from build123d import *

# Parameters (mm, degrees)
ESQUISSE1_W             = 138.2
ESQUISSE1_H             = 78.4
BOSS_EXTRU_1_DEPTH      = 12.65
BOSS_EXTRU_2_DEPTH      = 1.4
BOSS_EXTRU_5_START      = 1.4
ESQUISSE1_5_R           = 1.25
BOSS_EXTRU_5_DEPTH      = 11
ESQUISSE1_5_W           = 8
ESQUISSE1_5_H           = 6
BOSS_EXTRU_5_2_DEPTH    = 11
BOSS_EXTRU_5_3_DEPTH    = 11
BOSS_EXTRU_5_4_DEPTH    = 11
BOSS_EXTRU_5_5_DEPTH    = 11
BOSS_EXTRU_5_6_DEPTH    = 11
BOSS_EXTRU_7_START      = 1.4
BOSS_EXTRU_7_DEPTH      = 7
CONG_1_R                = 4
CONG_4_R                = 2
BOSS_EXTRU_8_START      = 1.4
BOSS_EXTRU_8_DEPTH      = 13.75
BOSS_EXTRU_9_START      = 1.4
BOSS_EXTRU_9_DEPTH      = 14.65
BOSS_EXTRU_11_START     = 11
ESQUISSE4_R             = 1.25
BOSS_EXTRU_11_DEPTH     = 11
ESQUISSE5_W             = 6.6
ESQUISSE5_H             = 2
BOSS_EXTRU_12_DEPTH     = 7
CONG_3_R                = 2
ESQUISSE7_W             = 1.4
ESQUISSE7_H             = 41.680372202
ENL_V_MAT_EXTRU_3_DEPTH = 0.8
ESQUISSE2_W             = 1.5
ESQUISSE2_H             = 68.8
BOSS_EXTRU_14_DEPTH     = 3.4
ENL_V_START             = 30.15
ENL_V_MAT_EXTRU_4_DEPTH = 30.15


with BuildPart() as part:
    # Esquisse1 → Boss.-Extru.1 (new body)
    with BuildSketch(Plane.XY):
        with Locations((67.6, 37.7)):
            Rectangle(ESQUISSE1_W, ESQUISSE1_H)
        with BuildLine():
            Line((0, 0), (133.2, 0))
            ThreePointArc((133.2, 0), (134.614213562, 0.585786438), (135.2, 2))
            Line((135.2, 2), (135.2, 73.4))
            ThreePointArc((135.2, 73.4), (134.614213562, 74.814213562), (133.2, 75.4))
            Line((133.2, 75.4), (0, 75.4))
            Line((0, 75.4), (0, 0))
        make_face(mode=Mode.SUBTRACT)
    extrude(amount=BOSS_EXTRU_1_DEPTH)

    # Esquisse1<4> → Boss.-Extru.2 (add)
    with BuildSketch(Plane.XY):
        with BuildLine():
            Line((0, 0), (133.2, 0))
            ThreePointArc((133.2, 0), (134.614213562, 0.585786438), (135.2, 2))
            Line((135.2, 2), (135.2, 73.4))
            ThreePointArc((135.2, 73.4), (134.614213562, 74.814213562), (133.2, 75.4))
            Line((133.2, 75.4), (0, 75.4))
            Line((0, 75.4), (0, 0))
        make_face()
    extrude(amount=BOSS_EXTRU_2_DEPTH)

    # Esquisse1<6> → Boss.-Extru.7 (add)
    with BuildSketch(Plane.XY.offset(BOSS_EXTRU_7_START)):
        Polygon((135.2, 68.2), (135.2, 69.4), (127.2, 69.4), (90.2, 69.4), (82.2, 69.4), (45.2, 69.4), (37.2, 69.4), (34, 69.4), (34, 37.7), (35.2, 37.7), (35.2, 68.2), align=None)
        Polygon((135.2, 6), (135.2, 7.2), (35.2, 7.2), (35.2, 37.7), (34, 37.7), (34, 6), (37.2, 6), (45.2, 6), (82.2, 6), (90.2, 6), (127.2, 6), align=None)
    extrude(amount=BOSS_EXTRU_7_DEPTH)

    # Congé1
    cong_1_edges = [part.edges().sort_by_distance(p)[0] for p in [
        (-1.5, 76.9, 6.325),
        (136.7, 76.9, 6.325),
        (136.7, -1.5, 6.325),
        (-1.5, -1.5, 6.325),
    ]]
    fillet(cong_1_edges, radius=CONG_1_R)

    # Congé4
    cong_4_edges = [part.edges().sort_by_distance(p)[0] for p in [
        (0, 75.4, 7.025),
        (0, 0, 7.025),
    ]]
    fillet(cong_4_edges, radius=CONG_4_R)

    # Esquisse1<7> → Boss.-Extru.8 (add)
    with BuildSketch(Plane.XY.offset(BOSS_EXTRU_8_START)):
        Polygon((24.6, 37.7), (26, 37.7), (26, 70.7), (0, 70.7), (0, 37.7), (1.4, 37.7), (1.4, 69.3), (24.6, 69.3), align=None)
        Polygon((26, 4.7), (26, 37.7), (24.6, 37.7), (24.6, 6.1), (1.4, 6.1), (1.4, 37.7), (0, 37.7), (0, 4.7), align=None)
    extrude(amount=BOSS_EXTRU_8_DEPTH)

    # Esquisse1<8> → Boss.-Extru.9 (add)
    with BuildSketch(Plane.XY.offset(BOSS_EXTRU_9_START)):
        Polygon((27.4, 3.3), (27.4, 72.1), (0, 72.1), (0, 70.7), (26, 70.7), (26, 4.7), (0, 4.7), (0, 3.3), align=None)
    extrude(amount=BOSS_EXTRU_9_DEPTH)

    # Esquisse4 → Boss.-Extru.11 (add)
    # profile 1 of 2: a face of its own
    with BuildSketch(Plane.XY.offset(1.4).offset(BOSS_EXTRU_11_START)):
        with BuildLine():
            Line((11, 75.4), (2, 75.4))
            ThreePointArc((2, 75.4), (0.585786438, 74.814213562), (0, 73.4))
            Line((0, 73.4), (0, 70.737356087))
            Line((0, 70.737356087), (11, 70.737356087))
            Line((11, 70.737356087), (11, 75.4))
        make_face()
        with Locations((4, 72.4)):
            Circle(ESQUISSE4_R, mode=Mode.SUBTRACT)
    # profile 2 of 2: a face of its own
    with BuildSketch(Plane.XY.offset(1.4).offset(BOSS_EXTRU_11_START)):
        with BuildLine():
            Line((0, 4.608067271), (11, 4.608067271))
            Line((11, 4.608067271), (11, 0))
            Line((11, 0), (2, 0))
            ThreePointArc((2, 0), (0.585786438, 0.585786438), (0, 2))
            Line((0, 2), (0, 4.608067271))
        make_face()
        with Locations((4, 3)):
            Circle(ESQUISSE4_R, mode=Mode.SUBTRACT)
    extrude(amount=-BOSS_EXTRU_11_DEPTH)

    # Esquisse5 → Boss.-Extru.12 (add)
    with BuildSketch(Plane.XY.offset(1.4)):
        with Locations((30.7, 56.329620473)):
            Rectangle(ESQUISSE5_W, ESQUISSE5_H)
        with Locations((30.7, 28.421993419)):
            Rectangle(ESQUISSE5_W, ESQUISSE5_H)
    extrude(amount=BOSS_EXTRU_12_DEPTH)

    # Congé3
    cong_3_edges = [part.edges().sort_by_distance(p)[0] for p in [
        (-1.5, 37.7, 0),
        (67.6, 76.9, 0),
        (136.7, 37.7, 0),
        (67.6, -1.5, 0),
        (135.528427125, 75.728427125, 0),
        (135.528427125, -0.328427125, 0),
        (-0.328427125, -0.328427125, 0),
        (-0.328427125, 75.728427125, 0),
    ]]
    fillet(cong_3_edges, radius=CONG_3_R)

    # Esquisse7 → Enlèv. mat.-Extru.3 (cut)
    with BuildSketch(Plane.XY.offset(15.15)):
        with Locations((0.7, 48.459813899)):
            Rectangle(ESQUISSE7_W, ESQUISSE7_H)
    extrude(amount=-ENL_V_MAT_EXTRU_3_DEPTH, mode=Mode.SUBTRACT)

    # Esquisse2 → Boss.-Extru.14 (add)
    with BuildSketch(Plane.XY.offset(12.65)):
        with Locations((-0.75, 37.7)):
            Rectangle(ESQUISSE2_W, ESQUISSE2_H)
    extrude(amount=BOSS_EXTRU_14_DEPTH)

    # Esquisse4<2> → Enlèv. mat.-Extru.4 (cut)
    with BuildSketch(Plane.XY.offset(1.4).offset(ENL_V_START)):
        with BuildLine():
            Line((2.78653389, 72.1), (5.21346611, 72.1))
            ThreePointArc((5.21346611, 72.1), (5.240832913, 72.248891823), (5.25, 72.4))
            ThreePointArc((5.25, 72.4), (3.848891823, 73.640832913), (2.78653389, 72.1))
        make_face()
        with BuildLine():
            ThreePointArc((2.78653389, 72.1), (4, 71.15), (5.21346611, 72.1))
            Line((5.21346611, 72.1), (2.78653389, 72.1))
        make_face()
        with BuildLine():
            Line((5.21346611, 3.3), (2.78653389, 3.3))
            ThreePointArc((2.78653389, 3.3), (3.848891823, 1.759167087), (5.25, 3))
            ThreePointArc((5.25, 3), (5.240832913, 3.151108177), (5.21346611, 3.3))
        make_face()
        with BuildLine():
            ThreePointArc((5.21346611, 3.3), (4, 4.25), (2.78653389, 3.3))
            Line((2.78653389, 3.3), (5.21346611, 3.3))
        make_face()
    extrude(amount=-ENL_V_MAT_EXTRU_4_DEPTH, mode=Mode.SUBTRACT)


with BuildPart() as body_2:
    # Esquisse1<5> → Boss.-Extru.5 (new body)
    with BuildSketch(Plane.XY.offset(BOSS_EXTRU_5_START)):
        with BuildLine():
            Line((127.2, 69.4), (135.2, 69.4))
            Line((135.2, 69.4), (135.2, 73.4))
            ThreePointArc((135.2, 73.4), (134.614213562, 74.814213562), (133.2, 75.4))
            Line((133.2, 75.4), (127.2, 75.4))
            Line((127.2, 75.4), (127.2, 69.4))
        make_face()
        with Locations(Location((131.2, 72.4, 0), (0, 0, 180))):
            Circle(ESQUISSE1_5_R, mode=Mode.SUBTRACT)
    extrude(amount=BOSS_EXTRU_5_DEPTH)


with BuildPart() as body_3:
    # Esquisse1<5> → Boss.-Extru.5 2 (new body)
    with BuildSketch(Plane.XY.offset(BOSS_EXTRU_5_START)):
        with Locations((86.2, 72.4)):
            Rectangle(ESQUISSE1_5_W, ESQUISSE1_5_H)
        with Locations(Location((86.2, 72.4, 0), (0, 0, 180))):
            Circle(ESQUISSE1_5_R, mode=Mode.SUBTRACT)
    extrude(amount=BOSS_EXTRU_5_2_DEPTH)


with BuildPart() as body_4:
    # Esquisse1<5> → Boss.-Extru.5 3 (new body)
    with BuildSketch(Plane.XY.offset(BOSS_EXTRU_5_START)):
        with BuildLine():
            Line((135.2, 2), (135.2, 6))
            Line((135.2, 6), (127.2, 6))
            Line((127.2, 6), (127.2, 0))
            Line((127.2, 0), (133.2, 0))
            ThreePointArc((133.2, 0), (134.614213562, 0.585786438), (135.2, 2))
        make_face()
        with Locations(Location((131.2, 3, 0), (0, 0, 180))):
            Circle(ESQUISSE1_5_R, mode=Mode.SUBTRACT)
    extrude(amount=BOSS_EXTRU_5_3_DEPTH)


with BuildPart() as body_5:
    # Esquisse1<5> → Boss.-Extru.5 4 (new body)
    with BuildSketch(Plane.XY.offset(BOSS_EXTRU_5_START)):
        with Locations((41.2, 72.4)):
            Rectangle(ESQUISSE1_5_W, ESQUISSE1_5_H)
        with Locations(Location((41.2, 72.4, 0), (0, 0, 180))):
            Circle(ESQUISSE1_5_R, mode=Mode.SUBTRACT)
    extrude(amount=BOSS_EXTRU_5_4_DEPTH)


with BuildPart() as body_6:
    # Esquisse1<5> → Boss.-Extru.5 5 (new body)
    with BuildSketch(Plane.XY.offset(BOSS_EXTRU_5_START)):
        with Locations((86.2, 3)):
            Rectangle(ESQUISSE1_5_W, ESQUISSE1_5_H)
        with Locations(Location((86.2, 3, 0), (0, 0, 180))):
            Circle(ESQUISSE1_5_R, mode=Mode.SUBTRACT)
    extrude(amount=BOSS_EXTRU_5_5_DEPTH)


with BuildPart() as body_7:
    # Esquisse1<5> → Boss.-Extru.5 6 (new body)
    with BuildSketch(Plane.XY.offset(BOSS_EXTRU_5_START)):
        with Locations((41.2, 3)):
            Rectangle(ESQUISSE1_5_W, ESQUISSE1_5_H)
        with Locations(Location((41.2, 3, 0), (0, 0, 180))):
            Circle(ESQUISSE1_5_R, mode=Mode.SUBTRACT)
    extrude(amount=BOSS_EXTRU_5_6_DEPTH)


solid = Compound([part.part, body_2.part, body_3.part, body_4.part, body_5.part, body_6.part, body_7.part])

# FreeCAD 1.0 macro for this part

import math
import FreeCAD as App
import Part
import Sketcher

V = App.Vector


def edges_at(feature, points):
    """Names of the edges that pass closest to the given points."""
    edges = feature.Shape.Edges
    near = lambda p: min(range(len(edges)), key=lambda i: edges[i].distToShape(Part.Vertex(*p))[0])
    return sorted({f"Edge{near(p) + 1}" for p in points})

doc = App.newDocument("Part")
body = doc.addObject("PartDesign::Body", "Body")

sketch1 = doc.addObject("Sketcher::SketchObject", "Sketch")
body.addObject(sketch1)
sketch1.AttachmentSupport = (doc.XY_Plane, [""])
sketch1.MapMode = "FlatFace"
sketch1.addGeometry([
    Part.LineSegment(V(-1.5, 76.9, 0), V(-1.5, -1.5, 0)),
    Part.LineSegment(V(-1.5, -1.5, 0), V(136.7, -1.5, 0)),
    Part.LineSegment(V(136.7, -1.5, 0), V(136.7, 76.9, 0)),
    Part.LineSegment(V(136.7, 76.9, 0), V(-1.5, 76.9, 0)),
    Part.LineSegment(V(133.2, 0, 0), V(0, 0, 0)),
    Part.LineSegment(V(0, 0, 0), V(0, 75.4, 0)),
    Part.LineSegment(V(0, 75.4, 0), V(133.2, 75.4, 0)),
    Part.ArcOfCircle(Part.Circle(V(133.2, 73.4, 0), V(0, 0, 1), 2), math.radians(0), math.radians(90)),
    Part.LineSegment(V(135.2, 73.4, 0), V(135.2, 2, 0)),
    Part.ArcOfCircle(Part.Circle(V(133.2, 2, 0), V(0, 0, 1), 2), math.radians(-90), math.radians(0)),
], False)
sketch1.addConstraint([
    Sketcher.Constraint("Coincident", 0, 2, 1, 1),
    Sketcher.Constraint("Coincident", 1, 2, 2, 1),
    Sketcher.Constraint("Coincident", 2, 2, 3, 1),
    Sketcher.Constraint("Coincident", 3, 2, 0, 1),
    Sketcher.Constraint("Coincident", 4, 2, 5, 1),
    Sketcher.Constraint("Coincident", 5, 2, 6, 1),
    Sketcher.Constraint("Tangent", 6, 2, 7, 2),
    Sketcher.Constraint("Tangent", 7, 1, 8, 1),
    Sketcher.Constraint("Tangent", 8, 2, 9, 2),
    Sketcher.Constraint("Tangent", 9, 1, 4, 1),
    Sketcher.Constraint("Vertical", 0),
    Sketcher.Constraint("Horizontal", 1),
    Sketcher.Constraint("Vertical", 2),
    Sketcher.Constraint("Horizontal", 3),
    Sketcher.Constraint("Horizontal", 4),
    Sketcher.Constraint("Vertical", 5),
    Sketcher.Constraint("Horizontal", 6),
    Sketcher.Constraint("Vertical", 8),
    Sketcher.Constraint("Coincident", 4, 2, -1, 1),
    Sketcher.Constraint("Equal", 7, 9),
    Sketcher.Constraint("Radius", 7, 2.0),
    Sketcher.Constraint("DistanceX", 1, 1, 1, 2, 138.2),
    Sketcher.Constraint("DistanceX", 4, 2, 4, 1, 133.2),
    Sketcher.Constraint("DistanceY", 0, 2, 0, 1, 78.4),
    Sketcher.Constraint("DistanceY", 5, 1, 5, 2, 75.4),
    Sketcher.Constraint("DistanceX", 0, 2, -1, 1, 1.5),
    Sketcher.Constraint("DistanceY", 0, 2, -1, 1, 1.5),
])
pad1 = doc.addObject("PartDesign::Pad", "Pad")
body.addObject(pad1)
pad1.Profile = sketch1
pad1.Length = 12.65

sketch2 = doc.addObject("Sketcher::SketchObject", "Sketch001")
body.addObject(sketch2)
sketch2.AttachmentSupport = (doc.XY_Plane, [""])
sketch2.MapMode = "FlatFace"
sketch2.addGeometry([
    Part.LineSegment(V(0, 0, 0), V(133.2, 0, 0)),
    Part.ArcOfCircle(Part.Circle(V(133.2, 2, 0), V(0, 0, 1), 2), math.radians(-90), math.radians(0)),
    Part.LineSegment(V(135.2, 2, 0), V(135.2, 73.4, 0)),
    Part.ArcOfCircle(Part.Circle(V(133.2, 73.4, 0), V(0, 0, 1), 2), math.radians(0), math.radians(90)),
    Part.LineSegment(V(133.2, 75.4, 0), V(0, 75.4, 0)),
    Part.LineSegment(V(0, 75.4, 0), V(0, 0, 0)),
], False)
sketch2.addConstraint([
    Sketcher.Constraint("Tangent", 0, 2, 1, 1),
    Sketcher.Constraint("Tangent", 1, 2, 2, 1),
    Sketcher.Constraint("Tangent", 2, 2, 3, 1),
    Sketcher.Constraint("Tangent", 3, 2, 4, 1),
    Sketcher.Constraint("Coincident", 4, 2, 5, 1),
    Sketcher.Constraint("Coincident", 5, 2, 0, 1),
    Sketcher.Constraint("Horizontal", 0),
    Sketcher.Constraint("Vertical", 2),
    Sketcher.Constraint("Horizontal", 4),
    Sketcher.Constraint("Vertical", 5),
    Sketcher.Constraint("Coincident", 5, 2, -1, 1),
    Sketcher.Constraint("Equal", 1, 3),
    Sketcher.Constraint("Radius", 1, 2.0),
    Sketcher.Constraint("DistanceX", 0, 1, 0, 2, 133.2),
    Sketcher.Constraint("DistanceY", 2, 1, 2, 2, 71.4),
])
pad2 = doc.addObject("PartDesign::Pad", "Pad001")
body.addObject(pad2)
pad2.Profile = sketch2
pad2.Length = 1.4

sketch3 = doc.addObject("Sketcher::SketchObject", "Sketch002")
body.addObject(sketch3)
sketch3.AttachmentSupport = (doc.XY_Plane, [""])
sketch3.MapMode = "FlatFace"
sketch3.AttachmentOffset = App.Placement(V(0, 0, 1.4), App.Rotation())
sketch3.addGeometry([
    Part.LineSegment(V(135.2, 68.2, 0), V(135.2, 69.4, 0)),
    Part.LineSegment(V(135.2, 69.4, 0), V(34, 69.4, 0)),
    Part.LineSegment(V(34, 69.4, 0), V(34, 6, 0)),
    Part.LineSegment(V(34, 6, 0), V(135.2, 6, 0)),
    Part.LineSegment(V(135.2, 6, 0), V(135.2, 7.2, 0)),
    Part.LineSegment(V(135.2, 7.2, 0), V(35.2, 7.2, 0)),
    Part.LineSegment(V(35.2, 7.2, 0), V(35.2, 68.2, 0)),
    Part.LineSegment(V(35.2, 68.2, 0), V(135.2, 68.2, 0)),
], False)
sketch3.addConstraint([
    Sketcher.Constraint("Coincident", 0, 2, 1, 1),
    Sketcher.Constraint("Coincident", 1, 2, 2, 1),
    Sketcher.Constraint("Coincident", 2, 2, 3, 1),
    Sketcher.Constraint("Coincident", 3, 2, 4, 1),
    Sketcher.Constraint("Coincident", 4, 2, 5, 1),
    Sketcher.Constraint("Coincident", 5, 2, 6, 1),
    Sketcher.Constraint("Coincident", 6, 2, 7, 1),
    Sketcher.Constraint("Coincident", 7, 2, 0, 1),
    Sketcher.Constraint("Vertical", 0),
    Sketcher.Constraint("Horizontal", 1),
    Sketcher.Constraint("Vertical", 2),
    Sketcher.Constraint("Horizontal", 3),
    Sketcher.Constraint("Vertical", 4),
    Sketcher.Constraint("Horizontal", 5),
    Sketcher.Constraint("Vertical", 6),
    Sketcher.Constraint("Horizontal", 7),
    Sketcher.Constraint("Vertical", 0, 2, 3, 2),
    Sketcher.Constraint("Equal", 0, 4),
    Sketcher.Constraint("DistanceX", 5, 2, 5, 1, 100.0),
    Sketcher.Constraint("DistanceY", 6, 1, 6, 2, 61.0),
    Sketcher.Constraint("DistanceX", 1, 2, 1, 1, 101.2),
    Sketcher.Constraint("DistanceY", 0, 1, 0, 2, 1.2),
    Sketcher.Constraint("DistanceX", -1, 1, 1, 2, 34.0),
    Sketcher.Constraint("DistanceY", -1, 1, 2, 2, 6.0),
])
pad3 = doc.addObject("PartDesign::Pad", "Pad002")
body.addObject(pad3)
pad3.Profile = sketch3
pad3.Length = 7
doc.recompute()

fillet = doc.addObject("PartDesign::Fillet", "Fillet")
body.addObject(fillet)
fillet.Base = (pad3, edges_at(pad3, [
    (-1.5, 76.9, 6.325),
    (136.7, 76.9, 6.325),
    (136.7, -1.5, 6.325),
    (-1.5, -1.5, 6.325),
]))
fillet.Radius = 4
doc.recompute()

fillet2 = doc.addObject("PartDesign::Fillet", "Fillet001")
body.addObject(fillet2)
fillet2.Base = (fillet, edges_at(fillet, [(0, 75.4, 7.025), (0, 0, 7.025)]))
fillet2.Radius = 2

sketch4 = doc.addObject("Sketcher::SketchObject", "Sketch003")
body.addObject(sketch4)
sketch4.AttachmentSupport = (doc.XY_Plane, [""])
sketch4.MapMode = "FlatFace"
sketch4.AttachmentOffset = App.Placement(V(0, 0, 1.4), App.Rotation())
sketch4.addGeometry([
    Part.LineSegment(V(26, 71, 0), V(0, 71, 0)),
    Part.LineSegment(V(0, 71, 0), V(0, 5, 0)),
    Part.LineSegment(V(0, 5, 0), V(26, 5, 0)),
    Part.LineSegment(V(26, 5, 0), V(26, 71, 0)),
    Part.LineSegment(V(1, 69, 0), V(25, 69, 0)),
    Part.LineSegment(V(25, 69, 0), V(25, 6, 0)),
    Part.LineSegment(V(25, 6, 0), V(1, 6, 0)),
    Part.LineSegment(V(1, 6, 0), V(1, 69, 0)),
], False)
sketch4.addConstraint([
    Sketcher.Constraint("Coincident", 0, 2, 1, 1),
    Sketcher.Constraint("Coincident", 1, 2, 2, 1),
    Sketcher.Constraint("Coincident", 2, 2, 3, 1),
    Sketcher.Constraint("Coincident", 3, 2, 0, 1),
    Sketcher.Constraint("Coincident", 4, 2, 5, 1),
    Sketcher.Constraint("Coincident", 5, 2, 6, 1),
    Sketcher.Constraint("Coincident", 6, 2, 7, 1),
    Sketcher.Constraint("Coincident", 7, 2, 4, 1),
    Sketcher.Constraint("Horizontal", 0),
    Sketcher.Constraint("Vertical", 1),
    Sketcher.Constraint("Horizontal", 2),
    Sketcher.Constraint("Vertical", 3),
    Sketcher.Constraint("Horizontal", 4),
    Sketcher.Constraint("Vertical", 5),
    Sketcher.Constraint("Horizontal", 6),
    Sketcher.Constraint("Vertical", 7),
    Sketcher.Constraint("PointOnObject", 0, 2, -2),
    Sketcher.Constraint("DistanceX", 0, 2, 0, 1, 26.0),
    Sketcher.Constraint("DistanceY", 1, 2, 1, 1, 66.0),
    Sketcher.Constraint("DistanceX", 4, 1, 4, 2, 23.2),
    Sketcher.Constraint("DistanceY", 5, 2, 5, 1, 63.2),
    Sketcher.Constraint("DistanceY", -1, 1, 0, 2, 70.7),
    Sketcher.Constraint("DistanceX", -1, 1, 4, 2, 24.6),
    Sketcher.Constraint("DistanceY", -1, 1, 4, 2, 69.3),
])
pad4 = doc.addObject("PartDesign::Pad", "Pad003")
body.addObject(pad4)
pad4.Profile = sketch4
pad4.Length = 13.75

sketch5 = doc.addObject("Sketcher::SketchObject", "Sketch004")
body.addObject(sketch5)
sketch5.AttachmentSupport = (doc.XY_Plane, [""])
sketch5.MapMode = "FlatFace"
sketch5.AttachmentOffset = App.Placement(V(0, 0, 1.4), App.Rotation())
sketch5.addGeometry([
    Part.LineSegment(V(27.4, 3.3, 0), V(27.4, 72.1, 0)),
    Part.LineSegment(V(27.4, 72.1, 0), V(0, 72.1, 0)),
    Part.LineSegment(V(0, 72.1, 0), V(0, 70.7, 0)),
    Part.LineSegment(V(0, 70.7, 0), V(26, 70.7, 0)),
    Part.LineSegment(V(26, 70.7, 0), V(26, 4.7, 0)),
    Part.LineSegment(V(26, 4.7, 0), V(0, 4.7, 0)),
    Part.LineSegment(V(0, 4.7, 0), V(0, 3.3, 0)),
    Part.LineSegment(V(0, 3.3, 0), V(27.4, 3.3, 0)),
], False)
sketch5.addConstraint([
    Sketcher.Constraint("Coincident", 0, 2, 1, 1),
    Sketcher.Constraint("Coincident", 1, 2, 2, 1),
    Sketcher.Constraint("Coincident", 2, 2, 3, 1),
    Sketcher.Constraint("Coincident", 3, 2, 4, 1),
    Sketcher.Constraint("Coincident", 4, 2, 5, 1),
    Sketcher.Constraint("Coincident", 5, 2, 6, 1),
    Sketcher.Constraint("Coincident", 6, 2, 7, 1),
    Sketcher.Constraint("Coincident", 7, 2, 0, 1),
    Sketcher.Constraint("Vertical", 0),
    Sketcher.Constraint("Horizontal", 1),
    Sketcher.Constraint("Vertical", 2),
    Sketcher.Constraint("Horizontal", 3),
    Sketcher.Constraint("Vertical", 4),
    Sketcher.Constraint("Horizontal", 5),
    Sketcher.Constraint("Vertical", 6),
    Sketcher.Constraint("Horizontal", 7),
    Sketcher.Constraint("PointOnObject", 1, 2, -2),
    Sketcher.Constraint("PointOnObject", 5, 2, -2),
    Sketcher.Constraint("Equal", 2, 6),
    Sketcher.Constraint("DistanceX", 3, 1, 3, 2, 26.0),
    Sketcher.Constraint("DistanceY", 4, 2, 4, 1, 66.0),
    Sketcher.Constraint("DistanceX", 1, 2, 1, 1, 27.4),
    Sketcher.Constraint("DistanceY", 0, 1, 0, 2, 68.8),
    Sketcher.Constraint("DistanceY", -1, 1, 0, 2, 72.1),
])
pad5 = doc.addObject("PartDesign::Pad", "Pad004")
body.addObject(pad5)
pad5.Profile = sketch5
pad5.Length = 14.65

sketch6 = doc.addObject("Sketcher::SketchObject", "Sketch005")
body.addObject(sketch6)
sketch6.AttachmentSupport = (doc.XY_Plane, [""])
sketch6.MapMode = "FlatFace"
sketch6.AttachmentOffset = App.Placement(V(0, 0, 12.4), App.Rotation())
sketch6.addGeometry([
    Part.LineSegment(V(11, 75.4, 0), V(2, 75.4, 0)),
    Part.ArcOfCircle(Part.Circle(V(2, 73.4, 0), V(0, 0, 1), 2), math.radians(90), math.radians(180)),
    Part.LineSegment(V(0, 73.4, 0), V(0, 70.7, 0)),
    Part.LineSegment(V(0, 70.7, 0), V(11, 70.7, 0)),
    Part.LineSegment(V(11, 70.7, 0), V(11, 75.4, 0)),
    Part.Circle(V(4, 72.4, 0), V(0, 0, 1), 1.2),
    Part.LineSegment(V(11, 4.6, 0), V(0, 4.6, 0)),
    Part.LineSegment(V(0, 4.6, 0), V(0, 2, 0)),
    Part.ArcOfCircle(Part.Circle(V(2, 2, 0), V(0, 0, 1), 2), math.radians(-180), math.radians(-90)),
    Part.LineSegment(V(2, 0, 0), V(11, 0, 0)),
    Part.LineSegment(V(11, 0, 0), V(11, 4.6, 0)),
    Part.Circle(V(4, 3, 0), V(0, 0, 1), 1.2),
], False)
sketch6.addConstraint([
    Sketcher.Constraint("Tangent", 0, 2, 1, 1),
    Sketcher.Constraint("Tangent", 1, 2, 2, 1),
    Sketcher.Constraint("Coincident", 2, 2, 3, 1),
    Sketcher.Constraint("Coincident", 3, 2, 4, 1),
    Sketcher.Constraint("Coincident", 4, 2, 0, 1),
    Sketcher.Constraint("Coincident", 6, 2, 7, 1),
    Sketcher.Constraint("Tangent", 7, 2, 8, 1),
    Sketcher.Constraint("Tangent", 8, 2, 9, 1),
    Sketcher.Constraint("Coincident", 9, 2, 10, 1),
    Sketcher.Constraint("Coincident", 10, 2, 6, 1),
    Sketcher.Constraint("Horizontal", 0),
    Sketcher.Constraint("Vertical", 2),
    Sketcher.Constraint("Horizontal", 3),
    Sketcher.Constraint("Vertical", 4),
    Sketcher.Constraint("Horizontal", 6),
    Sketcher.Constraint("Vertical", 7),
    Sketcher.Constraint("Horizontal", 9),
    Sketcher.Constraint("Vertical", 10),
    Sketcher.Constraint("Equal", 1, 8),
    Sketcher.Constraint("Equal", 5, 11),
    Sketcher.Constraint("PointOnObject", 1, 2, -2),
    Sketcher.Constraint("PointOnObject", 6, 2, -2),
    Sketcher.Constraint("PointOnObject", 8, 2, -1),
    Sketcher.Constraint("Vertical", 5, 3, 11, 3),
    Sketcher.Constraint("Vertical", 4, 2, 9, 2),
    Sketcher.Constraint("Radius", 1, 2.0),
    Sketcher.Constraint("Diameter", 5, 2.5),
    Sketcher.Constraint("DistanceX", 0, 2, 0, 1, 9.0),
    Sketcher.Constraint("DistanceX", -1, 1, 5, 3, 4.0),
    Sketcher.Constraint("DistanceY", -1, 1, 11, 3, 3.0),
    Sketcher.Constraint("DistanceY", 5, 3, 1, 3, 1.0),
    Sketcher.Constraint("DistanceY", -1, 1, 1, 3, 73.4),
    Sketcher.Constraint("DistanceY", 2, 2, 2, 1, 2.662644),
    Sketcher.Constraint("DistanceY", 7, 2, 7, 1, 2.608067),
])
pad6 = doc.addObject("PartDesign::Pad", "Pad005")
body.addObject(pad6)
pad6.Profile = sketch6
pad6.Length = 11
pad6.Reversed = True

sketch7 = doc.addObject("Sketcher::SketchObject", "Sketch006")
body.addObject(sketch7)
sketch7.AttachmentSupport = (doc.XY_Plane, [""])
sketch7.MapMode = "FlatFace"
sketch7.AttachmentOffset = App.Placement(V(0, 0, 1.4), App.Rotation())
sketch7.addGeometry([
    Part.LineSegment(V(27.4, 57.3, 0), V(27.4, 55.3, 0)),
    Part.LineSegment(V(27.4, 55.3, 0), V(34, 55.3, 0)),
    Part.LineSegment(V(34, 55.3, 0), V(34, 57.3, 0)),
    Part.LineSegment(V(34, 57.3, 0), V(27.4, 57.3, 0)),
    Part.LineSegment(V(27.4, 29.4, 0), V(27.4, 27.4, 0)),
    Part.LineSegment(V(27.4, 27.4, 0), V(34, 27.4, 0)),
    Part.LineSegment(V(34, 27.4, 0), V(34, 29.4, 0)),
    Part.LineSegment(V(34, 29.4, 0), V(27.4, 29.4, 0)),
], False)
sketch7.addConstraint([
    Sketcher.Constraint("Coincident", 0, 2, 1, 1),
    Sketcher.Constraint("Coincident", 1, 2, 2, 1),
    Sketcher.Constraint("Coincident", 2, 2, 3, 1),
    Sketcher.Constraint("Coincident", 3, 2, 0, 1),
    Sketcher.Constraint("Coincident", 4, 2, 5, 1),
    Sketcher.Constraint("Coincident", 5, 2, 6, 1),
    Sketcher.Constraint("Coincident", 6, 2, 7, 1),
    Sketcher.Constraint("Coincident", 7, 2, 4, 1),
    Sketcher.Constraint("Vertical", 0),
    Sketcher.Constraint("Horizontal", 1),
    Sketcher.Constraint("Vertical", 2),
    Sketcher.Constraint("Horizontal", 3),
    Sketcher.Constraint("Vertical", 4),
    Sketcher.Constraint("Horizontal", 5),
    Sketcher.Constraint("Vertical", 6),
    Sketcher.Constraint("Horizontal", 7),
    Sketcher.Constraint("Vertical", 3, 2, 4, 2),
    Sketcher.Constraint("Vertical", 2, 2, 5, 2),
    Sketcher.Constraint("Equal", 2, 4),
    Sketcher.Constraint("DistanceY", 0, 2, 0, 1, 2.0),
    Sketcher.Constraint("DistanceX", 1, 1, 1, 2, 6.6),
    Sketcher.Constraint("DistanceX", -1, 1, 1, 2, 34.0),
    Sketcher.Constraint("DistanceY", -1, 1, 0, 2, 55.32962),
    Sketcher.Constraint("DistanceY", -1, 1, 4, 2, 27.421993),
])
pad7 = doc.addObject("PartDesign::Pad", "Pad006")
body.addObject(pad7)
pad7.Profile = sketch7
pad7.Length = 7
doc.recompute()

fillet3 = doc.addObject("PartDesign::Fillet", "Fillet002")
body.addObject(fillet3)
fillet3.Base = (pad7, edges_at(pad7, [
    (-1.5, 37.7, 0),
    (67.6, 76.9, 0),
    (136.7, 37.7, 0),
    (67.6, -1.5, 0),
    (135.528, 75.728, 0),
    (135.528, -0.328, 0),
    (-0.328, -0.328, 0),
    (-0.328, 75.728, 0),
]))
fillet3.Radius = 2

sketch8 = doc.addObject("Sketcher::SketchObject", "Sketch007")
body.addObject(sketch8)
sketch8.AttachmentSupport = (doc.XY_Plane, [""])
sketch8.MapMode = "FlatFace"
sketch8.AttachmentOffset = App.Placement(V(0, 0, 15.15), App.Rotation())
sketch8.addGeometry([
    Part.LineSegment(V(0, 69.3, 0), V(0, 27.6, 0)),
    Part.LineSegment(V(0, 27.6, 0), V(1.4, 27.6, 0)),
    Part.LineSegment(V(1.4, 27.6, 0), V(1.4, 69.3, 0)),
    Part.LineSegment(V(1.4, 69.3, 0), V(0, 69.3, 0)),
], False)
sketch8.addConstraint([
    Sketcher.Constraint("Coincident", 0, 2, 1, 1),
    Sketcher.Constraint("Coincident", 1, 2, 2, 1),
    Sketcher.Constraint("Coincident", 2, 2, 3, 1),
    Sketcher.Constraint("Coincident", 3, 2, 0, 1),
    Sketcher.Constraint("Vertical", 0),
    Sketcher.Constraint("Horizontal", 1),
    Sketcher.Constraint("Vertical", 2),
    Sketcher.Constraint("Horizontal", 3),
    Sketcher.Constraint("PointOnObject", 0, 2, -2),
    Sketcher.Constraint("DistanceX", 1, 1, 1, 2, 1.4),
    Sketcher.Constraint("DistanceY", -1, 1, 2, 2, 69.3),
    Sketcher.Constraint("DistanceY", 0, 2, 0, 1, 41.680372),
])
pocket1 = doc.addObject("PartDesign::Pocket", "Pocket")
body.addObject(pocket1)
pocket1.Profile = sketch8
pocket1.Length = 0.8

sketch9 = doc.addObject("Sketcher::SketchObject", "Sketch008")
body.addObject(sketch9)
sketch9.AttachmentSupport = (doc.XY_Plane, [""])
sketch9.MapMode = "FlatFace"
sketch9.AttachmentOffset = App.Placement(V(0, 0, 12.65), App.Rotation())
sketch9.addGeometry([
    Part.LineSegment(V(-1.5, 72.1, 0), V(-1.5, 3.3, 0)),
    Part.LineSegment(V(-1.5, 3.3, 0), V(0, 3.3, 0)),
    Part.LineSegment(V(0, 3.3, 0), V(0, 72.1, 0)),
    Part.LineSegment(V(0, 72.1, 0), V(-1.5, 72.1, 0)),
], False)
sketch9.addConstraint([
    Sketcher.Constraint("Coincident", 0, 2, 1, 1),
    Sketcher.Constraint("Coincident", 1, 2, 2, 1),
    Sketcher.Constraint("Coincident", 2, 2, 3, 1),
    Sketcher.Constraint("Coincident", 3, 2, 0, 1),
    Sketcher.Constraint("Vertical", 0),
    Sketcher.Constraint("Horizontal", 1),
    Sketcher.Constraint("Vertical", 2),
    Sketcher.Constraint("Horizontal", 3),
    Sketcher.Constraint("PointOnObject", 1, 2, -2),
    Sketcher.Constraint("DistanceX", 1, 1, 1, 2, 1.5),
    Sketcher.Constraint("DistanceY", 0, 2, 0, 1, 68.8),
    Sketcher.Constraint("DistanceY", -1, 1, 0, 2, 3.3),
])
pad8 = doc.addObject("PartDesign::Pad", "Pad007")
body.addObject(pad8)
pad8.Profile = sketch9
pad8.Length = 3.4

sketch10 = doc.addObject("Sketcher::SketchObject", "Sketch009")
body.addObject(sketch10)
sketch10.AttachmentSupport = (doc.XY_Plane, [""])
sketch10.MapMode = "FlatFace"
sketch10.AttachmentOffset = App.Placement(V(0, 0, 31.55), App.Rotation())
sketch10.addGeometry([
    Part.ArcOfCircle(Part.Circle(V(4, 72.4, 0), V(0, 0, 1), 1.25), math.radians(-13.89), math.radians(0)),
    Part.ArcOfCircle(Part.Circle(V(4, 72.4, 0), V(0, 0, 1), 1.25), math.radians(0), math.radians(194)),
    Part.ArcOfCircle(Part.Circle(V(4, 72.4, 0), V(0, 0, 1), 1.25), math.radians(-166), math.radians(-14)),
    Part.ArcOfCircle(Part.Circle(V(4, 3, 0), V(0, 0, 1), 1.25), math.radians(166), math.radians(360)),
    Part.ArcOfCircle(Part.Circle(V(4, 3, 0), V(0, 0, 1), 1.25), math.radians(0), math.radians(13.89)),
    Part.ArcOfCircle(Part.Circle(V(4, 3, 0), V(0, 0, 1), 1.25), math.radians(14), math.radians(166)),
], False)
sketch10.addConstraint([
    Sketcher.Constraint("Tangent", 0, 2, 1, 1),
    Sketcher.Constraint("Tangent", 1, 2, 2, 1),
    Sketcher.Constraint("Tangent", 2, 2, 0, 1),
    Sketcher.Constraint("Tangent", 3, 2, 4, 1),
    Sketcher.Constraint("Tangent", 4, 2, 5, 1),
    Sketcher.Constraint("Tangent", 5, 2, 3, 1),
    Sketcher.Constraint("Equal", 2, 3),
    Sketcher.Constraint("Horizontal", 2, 3, 0, 2),
    Sketcher.Constraint("Horizontal", 1, 2, 2, 2),
    Sketcher.Constraint("Horizontal", 5, 3, 3, 2),
    Sketcher.Constraint("Horizontal", 4, 2, 5, 2),
    Sketcher.Constraint("Vertical", 2, 3, 3, 3),
    Sketcher.Constraint("Vertical", 2, 2, 4, 2),
    Sketcher.Constraint("Radius", 0, 1.25),
    Sketcher.Constraint("DistanceX", -1, 1, 0, 3, 4.0),
    Sketcher.Constraint("DistanceY", -1, 1, 3, 3, 3.0),
    Sketcher.Constraint("DistanceY", -1, 1, 0, 3, 72.4),
    Sketcher.Constraint("DistanceY", -1, 1, 1, 2, 72.1),
])
pocket2 = doc.addObject("PartDesign::Pocket", "Pocket001")
body.addObject(pocket2)
pocket2.Profile = sketch10
pocket2.Length = 30.15
body2 = doc.addObject("PartDesign::Body", "Body001")

sketch11 = doc.addObject("Sketcher::SketchObject", "Sketch010")
body2.addObject(sketch11)
sketch11.AttachmentSupport = (doc.getObject("XY_Plane001"), [""])
sketch11.MapMode = "FlatFace"
sketch11.AttachmentOffset = App.Placement(V(0, 0, 1.4), App.Rotation())
sketch11.addGeometry([
    Part.LineSegment(V(127.2, 69.4, 0), V(135.2, 69.4, 0)),
    Part.LineSegment(V(135.2, 69.4, 0), V(135.2, 73.4, 0)),
    Part.ArcOfCircle(Part.Circle(V(133.2, 73.4, 0), V(0, 0, 1), 2), math.radians(0), math.radians(90)),
    Part.LineSegment(V(133.2, 75.4, 0), V(127.2, 75.4, 0)),
    Part.LineSegment(V(127.2, 75.4, 0), V(127.2, 69.4, 0)),
    Part.Circle(V(131.2, 72.4, 0), V(0, 0, 1), 1.2),
], False)
sketch11.addConstraint([
    Sketcher.Constraint("Coincident", 0, 2, 1, 1),
    Sketcher.Constraint("Tangent", 1, 2, 2, 1),
    Sketcher.Constraint("Tangent", 2, 2, 3, 1),
    Sketcher.Constraint("Coincident", 3, 2, 4, 1),
    Sketcher.Constraint("Coincident", 4, 2, 0, 1),
    Sketcher.Constraint("Horizontal", 0),
    Sketcher.Constraint("Vertical", 1),
    Sketcher.Constraint("Horizontal", 3),
    Sketcher.Constraint("Vertical", 4),
    Sketcher.Constraint("Equal", 3, 4),
    Sketcher.Constraint("Radius", 2, 2.0),
    Sketcher.Constraint("Diameter", 5, 2.5),
    Sketcher.Constraint("DistanceX", 0, 1, 0, 2, 8.0),
    Sketcher.Constraint("DistanceX", 5, 3, 2, 3, 2.0),
    Sketcher.Constraint("DistanceY", 5, 3, 2, 3, 1.0),
    Sketcher.Constraint("DistanceX", -1, 1, 2, 3, 133.2),
    Sketcher.Constraint("DistanceY", -1, 1, 2, 3, 73.4),
])
pad9 = doc.addObject("PartDesign::Pad", "Pad008")
body2.addObject(pad9)
pad9.Profile = sketch11
pad9.Length = 11
body3 = doc.addObject("PartDesign::Body", "Body002")

sketch12 = doc.addObject("Sketcher::SketchObject", "Sketch011")
body3.addObject(sketch12)
sketch12.AttachmentSupport = (doc.getObject("XY_Plane002"), [""])
sketch12.MapMode = "FlatFace"
sketch12.AttachmentOffset = App.Placement(V(0, 0, 1.4), App.Rotation())
sketch12.addGeometry([
    Part.LineSegment(V(82.2, 75.4, 0), V(82.2, 69.4, 0)),
    Part.LineSegment(V(82.2, 69.4, 0), V(90.2, 69.4, 0)),
    Part.LineSegment(V(90.2, 69.4, 0), V(90.2, 75.4, 0)),
    Part.LineSegment(V(90.2, 75.4, 0), V(82.2, 75.4, 0)),
    Part.Circle(V(86.2, 72.4, 0), V(0, 0, 1), 1.2),
], False)
sketch12.addConstraint([
    Sketcher.Constraint("Coincident", 0, 2, 1, 1),
    Sketcher.Constraint("Coincident", 1, 2, 2, 1),
    Sketcher.Constraint("Coincident", 2, 2, 3, 1),
    Sketcher.Constraint("Coincident", 3, 2, 0, 1),
    Sketcher.Constraint("Vertical", 0),
    Sketcher.Constraint("Horizontal", 1),
    Sketcher.Constraint("Vertical", 2),
    Sketcher.Constraint("Horizontal", 3),
    Sketcher.Constraint("Diameter", 4, 2.5),
    Sketcher.Constraint("DistanceX", 1, 1, 1, 2, 8.0),
    Sketcher.Constraint("DistanceY", 0, 2, 0, 1, 6.0),
    Sketcher.Constraint("DistanceX", 0, 2, 4, 3, 4.0),
    Sketcher.Constraint("DistanceY", 0, 2, 4, 3, 3.0),
    Sketcher.Constraint("DistanceX", -1, 1, 4, 3, 86.2),
    Sketcher.Constraint("DistanceY", -1, 1, 4, 3, 72.4),
])
pad10 = doc.addObject("PartDesign::Pad", "Pad009")
body3.addObject(pad10)
pad10.Profile = sketch12
pad10.Length = 11
body4 = doc.addObject("PartDesign::Body", "Body003")

sketch13 = doc.addObject("Sketcher::SketchObject", "Sketch012")
body4.addObject(sketch13)
sketch13.AttachmentSupport = (doc.getObject("XY_Plane003"), [""])
sketch13.MapMode = "FlatFace"
sketch13.AttachmentOffset = App.Placement(V(0, 0, 1.4), App.Rotation())
sketch13.addGeometry([
    Part.LineSegment(V(135.2, 2, 0), V(135.2, 6, 0)),
    Part.LineSegment(V(135.2, 6, 0), V(127.2, 6, 0)),
    Part.LineSegment(V(127.2, 6, 0), V(127.2, 0, 0)),
    Part.LineSegment(V(127.2, 0, 0), V(133.2, 0, 0)),
    Part.ArcOfCircle(Part.Circle(V(133.2, 2, 0), V(0, 0, 1), 2), math.radians(-90), math.radians(0)),
    Part.Circle(V(131.2, 3, 0), V(0, 0, 1), 1.2),
], False)
sketch13.addConstraint([
    Sketcher.Constraint("Coincident", 0, 2, 1, 1),
    Sketcher.Constraint("Coincident", 1, 2, 2, 1),
    Sketcher.Constraint("Coincident", 2, 2, 3, 1),
    Sketcher.Constraint("Tangent", 3, 2, 4, 1),
    Sketcher.Constraint("Tangent", 4, 2, 0, 1),
    Sketcher.Constraint("Vertical", 0),
    Sketcher.Constraint("Horizontal", 1),
    Sketcher.Constraint("Vertical", 2),
    Sketcher.Constraint("Horizontal", 3),
    Sketcher.Constraint("PointOnObject", 2, 2, -1),
    Sketcher.Constraint("Equal", 3, 2),
    Sketcher.Constraint("Radius", 4, 2.0),
    Sketcher.Constraint("Diameter", 5, 2.5),
    Sketcher.Constraint("DistanceX", 1, 2, 1, 1, 8.0),
    Sketcher.Constraint("DistanceY", -1, 1, 5, 3, 3.0),
    Sketcher.Constraint("DistanceX", 5, 3, 4, 3, 2.0),
    Sketcher.Constraint("DistanceX", -1, 1, 4, 3, 133.2),
])
pad11 = doc.addObject("PartDesign::Pad", "Pad010")
body4.addObject(pad11)
pad11.Profile = sketch13
pad11.Length = 11
body5 = doc.addObject("PartDesign::Body", "Body004")

sketch14 = doc.addObject("Sketcher::SketchObject", "Sketch013")
body5.addObject(sketch14)
sketch14.AttachmentSupport = (doc.getObject("XY_Plane004"), [""])
sketch14.MapMode = "FlatFace"
sketch14.AttachmentOffset = App.Placement(V(0, 0, 1.4), App.Rotation())
sketch14.addGeometry([
    Part.LineSegment(V(37.2, 75.4, 0), V(37.2, 69.4, 0)),
    Part.LineSegment(V(37.2, 69.4, 0), V(45.2, 69.4, 0)),
    Part.LineSegment(V(45.2, 69.4, 0), V(45.2, 75.4, 0)),
    Part.LineSegment(V(45.2, 75.4, 0), V(37.2, 75.4, 0)),
    Part.Circle(V(41.2, 72.4, 0), V(0, 0, 1), 1.2),
], False)
sketch14.addConstraint([
    Sketcher.Constraint("Coincident", 0, 2, 1, 1),
    Sketcher.Constraint("Coincident", 1, 2, 2, 1),
    Sketcher.Constraint("Coincident", 2, 2, 3, 1),
    Sketcher.Constraint("Coincident", 3, 2, 0, 1),
    Sketcher.Constraint("Vertical", 0),
    Sketcher.Constraint("Horizontal", 1),
    Sketcher.Constraint("Vertical", 2),
    Sketcher.Constraint("Horizontal", 3),
    Sketcher.Constraint("Diameter", 4, 2.5),
    Sketcher.Constraint("DistanceX", 1, 1, 1, 2, 8.0),
    Sketcher.Constraint("DistanceY", 0, 2, 0, 1, 6.0),
    Sketcher.Constraint("DistanceX", 0, 2, 4, 3, 4.0),
    Sketcher.Constraint("DistanceY", 0, 2, 4, 3, 3.0),
    Sketcher.Constraint("DistanceX", -1, 1, 4, 3, 41.2),
    Sketcher.Constraint("DistanceY", -1, 1, 4, 3, 72.4),
])
pad12 = doc.addObject("PartDesign::Pad", "Pad011")
body5.addObject(pad12)
pad12.Profile = sketch14
pad12.Length = 11
body6 = doc.addObject("PartDesign::Body", "Body005")

sketch15 = doc.addObject("Sketcher::SketchObject", "Sketch014")
body6.addObject(sketch15)
sketch15.AttachmentSupport = (doc.getObject("XY_Plane005"), [""])
sketch15.MapMode = "FlatFace"
sketch15.AttachmentOffset = App.Placement(V(0, 0, 1.4), App.Rotation())
sketch15.addGeometry([
    Part.LineSegment(V(82.2, 6, 0), V(82.2, 0, 0)),
    Part.LineSegment(V(82.2, 0, 0), V(90.2, 0, 0)),
    Part.LineSegment(V(90.2, 0, 0), V(90.2, 6, 0)),
    Part.LineSegment(V(90.2, 6, 0), V(82.2, 6, 0)),
    Part.Circle(V(86.2, 3, 0), V(0, 0, 1), 1.2),
], False)
sketch15.addConstraint([
    Sketcher.Constraint("Coincident", 0, 2, 1, 1),
    Sketcher.Constraint("Coincident", 1, 2, 2, 1),
    Sketcher.Constraint("Coincident", 2, 2, 3, 1),
    Sketcher.Constraint("Coincident", 3, 2, 0, 1),
    Sketcher.Constraint("Vertical", 0),
    Sketcher.Constraint("Horizontal", 1),
    Sketcher.Constraint("Vertical", 2),
    Sketcher.Constraint("Horizontal", 3),
    Sketcher.Constraint("PointOnObject", 0, 2, -1),
    Sketcher.Constraint("Diameter", 4, 2.5),
    Sketcher.Constraint("DistanceX", 1, 1, 1, 2, 8.0),
    Sketcher.Constraint("DistanceY", 0, 2, 0, 1, 6.0),
    Sketcher.Constraint("DistanceY", -1, 1, 4, 3, 3.0),
    Sketcher.Constraint("DistanceX", 0, 2, 4, 3, 4.0),
    Sketcher.Constraint("DistanceX", -1, 1, 4, 3, 86.2),
])
pad13 = doc.addObject("PartDesign::Pad", "Pad012")
body6.addObject(pad13)
pad13.Profile = sketch15
pad13.Length = 11
body7 = doc.addObject("PartDesign::Body", "Body006")

sketch16 = doc.addObject("Sketcher::SketchObject", "Sketch015")
body7.addObject(sketch16)
sketch16.AttachmentSupport = (doc.getObject("XY_Plane006"), [""])
sketch16.MapMode = "FlatFace"
sketch16.AttachmentOffset = App.Placement(V(0, 0, 1.4), App.Rotation())
sketch16.addGeometry([
    Part.LineSegment(V(37.2, 6, 0), V(37.2, 0, 0)),
    Part.LineSegment(V(37.2, 0, 0), V(45.2, 0, 0)),
    Part.LineSegment(V(45.2, 0, 0), V(45.2, 6, 0)),
    Part.LineSegment(V(45.2, 6, 0), V(37.2, 6, 0)),
    Part.Circle(V(41.2, 3, 0), V(0, 0, 1), 1.2),
], False)
sketch16.addConstraint([
    Sketcher.Constraint("Coincident", 0, 2, 1, 1),
    Sketcher.Constraint("Coincident", 1, 2, 2, 1),
    Sketcher.Constraint("Coincident", 2, 2, 3, 1),
    Sketcher.Constraint("Coincident", 3, 2, 0, 1),
    Sketcher.Constraint("Vertical", 0),
    Sketcher.Constraint("Horizontal", 1),
    Sketcher.Constraint("Vertical", 2),
    Sketcher.Constraint("Horizontal", 3),
    Sketcher.Constraint("PointOnObject", 0, 2, -1),
    Sketcher.Constraint("Diameter", 4, 2.5),
    Sketcher.Constraint("DistanceX", 1, 1, 1, 2, 8.0),
    Sketcher.Constraint("DistanceY", 0, 2, 0, 1, 6.0),
    Sketcher.Constraint("DistanceY", -1, 1, 4, 3, 3.0),
    Sketcher.Constraint("DistanceX", 0, 2, 4, 3, 4.0),
    Sketcher.Constraint("DistanceX", -1, 1, 4, 3, 41.2),
])
pad14 = doc.addObject("PartDesign::Pad", "Pad013")
body7.addObject(pad14)
pad14.Profile = sketch16
pad14.Length = 11

doc.recompute()
